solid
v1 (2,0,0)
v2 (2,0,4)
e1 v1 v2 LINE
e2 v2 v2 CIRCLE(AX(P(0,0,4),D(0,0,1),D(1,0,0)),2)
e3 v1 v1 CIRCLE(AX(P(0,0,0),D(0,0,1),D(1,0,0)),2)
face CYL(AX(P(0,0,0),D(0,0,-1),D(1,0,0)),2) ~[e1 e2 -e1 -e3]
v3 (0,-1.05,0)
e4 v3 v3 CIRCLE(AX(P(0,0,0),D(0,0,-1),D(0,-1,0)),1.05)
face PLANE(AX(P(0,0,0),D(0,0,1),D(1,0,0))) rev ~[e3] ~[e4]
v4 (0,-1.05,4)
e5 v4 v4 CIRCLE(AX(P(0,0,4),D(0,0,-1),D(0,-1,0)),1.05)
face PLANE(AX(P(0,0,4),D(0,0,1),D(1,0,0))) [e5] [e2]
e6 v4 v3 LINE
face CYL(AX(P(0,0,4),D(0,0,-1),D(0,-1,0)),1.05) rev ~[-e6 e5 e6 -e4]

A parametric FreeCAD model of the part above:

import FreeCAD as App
import Part
import Sketcher

doc = App.newDocument("Part")
params = doc.addObject("Spreadsheet::Sheet", "Params")
for row, (alias, value) in enumerate([
    ("sketch1_diameter", "4 mm"),
    ("pad1_length", "4 mm"),
    ("sketch2_diameter", "2.1 mm"),
    ("hole_diameter", "2.1 mm"),
    ("hole_depth", "4 mm"),
], start=1):
    params.set(f"A{row}", alias)
    params.set(f"B{row}", "=" + value)
    params.setAlias(f"B{row}", alias)

body = doc.addObject("PartDesign::Body", "Body")

# Sketch on XY plane
sketch1 = body.newObject("Sketcher::SketchObject", "Sketch")
sketch1.AttachmentSupport = (doc.getObject("XY_Plane"), [""])
sketch1.MapMode = "FlatFace"
sketch1.addGeometry(Part.Circle(App.Vector(0, 0, 0), App.Vector(0, 0, 1), 2), False)
sketch1.addConstraint([
    Sketcher.Constraint("Coincident", 0, 3, -1, 1),
    Sketcher.Constraint("Diameter", 0, 4.0),
])
sketch1.setExpression("Constraints[1]", "Params.sketch1_diameter")
pad1 = body.newObject("PartDesign::Pad", "Pad")
pad1.Profile = sketch1
pad1.setExpression("Length", "Params.pad1_length")

# Sketch on XY plane
sketch2 = body.newObject("Sketcher::SketchObject", "Sketch001")
sketch2.AttachmentSupport = (doc.getObject("XY_Plane"), [""])
sketch2.MapMode = "FlatFace"
sketch2.AttachmentOffset = App.Placement(App.Vector(0, 0, 4), App.Rotation())
sketch2.addGeometry(Part.Circle(App.Vector(0, 0, 0), App.Vector(0, 0, 1), 1.1), False)
sketch2.addConstraint([
    Sketcher.Constraint("Coincident", 0, 3, -1, 1),
    Sketcher.Constraint("Diameter", 0, 2.1),
])
sketch2.setExpression("Constraints[1]", "Params.sketch2_diameter")
doc.recompute()
hole = body.newObject("PartDesign::Hole", "Hole")
hole.Profile = sketch2
hole.ThreadType = "None"
hole.setExpression("Diameter", "Params.hole_diameter")
hole.DepthType = "Dimension"
hole.setExpression("Depth", "Params.hole_depth")
hole.DrillPoint = "Flat"

doc.recompute()
